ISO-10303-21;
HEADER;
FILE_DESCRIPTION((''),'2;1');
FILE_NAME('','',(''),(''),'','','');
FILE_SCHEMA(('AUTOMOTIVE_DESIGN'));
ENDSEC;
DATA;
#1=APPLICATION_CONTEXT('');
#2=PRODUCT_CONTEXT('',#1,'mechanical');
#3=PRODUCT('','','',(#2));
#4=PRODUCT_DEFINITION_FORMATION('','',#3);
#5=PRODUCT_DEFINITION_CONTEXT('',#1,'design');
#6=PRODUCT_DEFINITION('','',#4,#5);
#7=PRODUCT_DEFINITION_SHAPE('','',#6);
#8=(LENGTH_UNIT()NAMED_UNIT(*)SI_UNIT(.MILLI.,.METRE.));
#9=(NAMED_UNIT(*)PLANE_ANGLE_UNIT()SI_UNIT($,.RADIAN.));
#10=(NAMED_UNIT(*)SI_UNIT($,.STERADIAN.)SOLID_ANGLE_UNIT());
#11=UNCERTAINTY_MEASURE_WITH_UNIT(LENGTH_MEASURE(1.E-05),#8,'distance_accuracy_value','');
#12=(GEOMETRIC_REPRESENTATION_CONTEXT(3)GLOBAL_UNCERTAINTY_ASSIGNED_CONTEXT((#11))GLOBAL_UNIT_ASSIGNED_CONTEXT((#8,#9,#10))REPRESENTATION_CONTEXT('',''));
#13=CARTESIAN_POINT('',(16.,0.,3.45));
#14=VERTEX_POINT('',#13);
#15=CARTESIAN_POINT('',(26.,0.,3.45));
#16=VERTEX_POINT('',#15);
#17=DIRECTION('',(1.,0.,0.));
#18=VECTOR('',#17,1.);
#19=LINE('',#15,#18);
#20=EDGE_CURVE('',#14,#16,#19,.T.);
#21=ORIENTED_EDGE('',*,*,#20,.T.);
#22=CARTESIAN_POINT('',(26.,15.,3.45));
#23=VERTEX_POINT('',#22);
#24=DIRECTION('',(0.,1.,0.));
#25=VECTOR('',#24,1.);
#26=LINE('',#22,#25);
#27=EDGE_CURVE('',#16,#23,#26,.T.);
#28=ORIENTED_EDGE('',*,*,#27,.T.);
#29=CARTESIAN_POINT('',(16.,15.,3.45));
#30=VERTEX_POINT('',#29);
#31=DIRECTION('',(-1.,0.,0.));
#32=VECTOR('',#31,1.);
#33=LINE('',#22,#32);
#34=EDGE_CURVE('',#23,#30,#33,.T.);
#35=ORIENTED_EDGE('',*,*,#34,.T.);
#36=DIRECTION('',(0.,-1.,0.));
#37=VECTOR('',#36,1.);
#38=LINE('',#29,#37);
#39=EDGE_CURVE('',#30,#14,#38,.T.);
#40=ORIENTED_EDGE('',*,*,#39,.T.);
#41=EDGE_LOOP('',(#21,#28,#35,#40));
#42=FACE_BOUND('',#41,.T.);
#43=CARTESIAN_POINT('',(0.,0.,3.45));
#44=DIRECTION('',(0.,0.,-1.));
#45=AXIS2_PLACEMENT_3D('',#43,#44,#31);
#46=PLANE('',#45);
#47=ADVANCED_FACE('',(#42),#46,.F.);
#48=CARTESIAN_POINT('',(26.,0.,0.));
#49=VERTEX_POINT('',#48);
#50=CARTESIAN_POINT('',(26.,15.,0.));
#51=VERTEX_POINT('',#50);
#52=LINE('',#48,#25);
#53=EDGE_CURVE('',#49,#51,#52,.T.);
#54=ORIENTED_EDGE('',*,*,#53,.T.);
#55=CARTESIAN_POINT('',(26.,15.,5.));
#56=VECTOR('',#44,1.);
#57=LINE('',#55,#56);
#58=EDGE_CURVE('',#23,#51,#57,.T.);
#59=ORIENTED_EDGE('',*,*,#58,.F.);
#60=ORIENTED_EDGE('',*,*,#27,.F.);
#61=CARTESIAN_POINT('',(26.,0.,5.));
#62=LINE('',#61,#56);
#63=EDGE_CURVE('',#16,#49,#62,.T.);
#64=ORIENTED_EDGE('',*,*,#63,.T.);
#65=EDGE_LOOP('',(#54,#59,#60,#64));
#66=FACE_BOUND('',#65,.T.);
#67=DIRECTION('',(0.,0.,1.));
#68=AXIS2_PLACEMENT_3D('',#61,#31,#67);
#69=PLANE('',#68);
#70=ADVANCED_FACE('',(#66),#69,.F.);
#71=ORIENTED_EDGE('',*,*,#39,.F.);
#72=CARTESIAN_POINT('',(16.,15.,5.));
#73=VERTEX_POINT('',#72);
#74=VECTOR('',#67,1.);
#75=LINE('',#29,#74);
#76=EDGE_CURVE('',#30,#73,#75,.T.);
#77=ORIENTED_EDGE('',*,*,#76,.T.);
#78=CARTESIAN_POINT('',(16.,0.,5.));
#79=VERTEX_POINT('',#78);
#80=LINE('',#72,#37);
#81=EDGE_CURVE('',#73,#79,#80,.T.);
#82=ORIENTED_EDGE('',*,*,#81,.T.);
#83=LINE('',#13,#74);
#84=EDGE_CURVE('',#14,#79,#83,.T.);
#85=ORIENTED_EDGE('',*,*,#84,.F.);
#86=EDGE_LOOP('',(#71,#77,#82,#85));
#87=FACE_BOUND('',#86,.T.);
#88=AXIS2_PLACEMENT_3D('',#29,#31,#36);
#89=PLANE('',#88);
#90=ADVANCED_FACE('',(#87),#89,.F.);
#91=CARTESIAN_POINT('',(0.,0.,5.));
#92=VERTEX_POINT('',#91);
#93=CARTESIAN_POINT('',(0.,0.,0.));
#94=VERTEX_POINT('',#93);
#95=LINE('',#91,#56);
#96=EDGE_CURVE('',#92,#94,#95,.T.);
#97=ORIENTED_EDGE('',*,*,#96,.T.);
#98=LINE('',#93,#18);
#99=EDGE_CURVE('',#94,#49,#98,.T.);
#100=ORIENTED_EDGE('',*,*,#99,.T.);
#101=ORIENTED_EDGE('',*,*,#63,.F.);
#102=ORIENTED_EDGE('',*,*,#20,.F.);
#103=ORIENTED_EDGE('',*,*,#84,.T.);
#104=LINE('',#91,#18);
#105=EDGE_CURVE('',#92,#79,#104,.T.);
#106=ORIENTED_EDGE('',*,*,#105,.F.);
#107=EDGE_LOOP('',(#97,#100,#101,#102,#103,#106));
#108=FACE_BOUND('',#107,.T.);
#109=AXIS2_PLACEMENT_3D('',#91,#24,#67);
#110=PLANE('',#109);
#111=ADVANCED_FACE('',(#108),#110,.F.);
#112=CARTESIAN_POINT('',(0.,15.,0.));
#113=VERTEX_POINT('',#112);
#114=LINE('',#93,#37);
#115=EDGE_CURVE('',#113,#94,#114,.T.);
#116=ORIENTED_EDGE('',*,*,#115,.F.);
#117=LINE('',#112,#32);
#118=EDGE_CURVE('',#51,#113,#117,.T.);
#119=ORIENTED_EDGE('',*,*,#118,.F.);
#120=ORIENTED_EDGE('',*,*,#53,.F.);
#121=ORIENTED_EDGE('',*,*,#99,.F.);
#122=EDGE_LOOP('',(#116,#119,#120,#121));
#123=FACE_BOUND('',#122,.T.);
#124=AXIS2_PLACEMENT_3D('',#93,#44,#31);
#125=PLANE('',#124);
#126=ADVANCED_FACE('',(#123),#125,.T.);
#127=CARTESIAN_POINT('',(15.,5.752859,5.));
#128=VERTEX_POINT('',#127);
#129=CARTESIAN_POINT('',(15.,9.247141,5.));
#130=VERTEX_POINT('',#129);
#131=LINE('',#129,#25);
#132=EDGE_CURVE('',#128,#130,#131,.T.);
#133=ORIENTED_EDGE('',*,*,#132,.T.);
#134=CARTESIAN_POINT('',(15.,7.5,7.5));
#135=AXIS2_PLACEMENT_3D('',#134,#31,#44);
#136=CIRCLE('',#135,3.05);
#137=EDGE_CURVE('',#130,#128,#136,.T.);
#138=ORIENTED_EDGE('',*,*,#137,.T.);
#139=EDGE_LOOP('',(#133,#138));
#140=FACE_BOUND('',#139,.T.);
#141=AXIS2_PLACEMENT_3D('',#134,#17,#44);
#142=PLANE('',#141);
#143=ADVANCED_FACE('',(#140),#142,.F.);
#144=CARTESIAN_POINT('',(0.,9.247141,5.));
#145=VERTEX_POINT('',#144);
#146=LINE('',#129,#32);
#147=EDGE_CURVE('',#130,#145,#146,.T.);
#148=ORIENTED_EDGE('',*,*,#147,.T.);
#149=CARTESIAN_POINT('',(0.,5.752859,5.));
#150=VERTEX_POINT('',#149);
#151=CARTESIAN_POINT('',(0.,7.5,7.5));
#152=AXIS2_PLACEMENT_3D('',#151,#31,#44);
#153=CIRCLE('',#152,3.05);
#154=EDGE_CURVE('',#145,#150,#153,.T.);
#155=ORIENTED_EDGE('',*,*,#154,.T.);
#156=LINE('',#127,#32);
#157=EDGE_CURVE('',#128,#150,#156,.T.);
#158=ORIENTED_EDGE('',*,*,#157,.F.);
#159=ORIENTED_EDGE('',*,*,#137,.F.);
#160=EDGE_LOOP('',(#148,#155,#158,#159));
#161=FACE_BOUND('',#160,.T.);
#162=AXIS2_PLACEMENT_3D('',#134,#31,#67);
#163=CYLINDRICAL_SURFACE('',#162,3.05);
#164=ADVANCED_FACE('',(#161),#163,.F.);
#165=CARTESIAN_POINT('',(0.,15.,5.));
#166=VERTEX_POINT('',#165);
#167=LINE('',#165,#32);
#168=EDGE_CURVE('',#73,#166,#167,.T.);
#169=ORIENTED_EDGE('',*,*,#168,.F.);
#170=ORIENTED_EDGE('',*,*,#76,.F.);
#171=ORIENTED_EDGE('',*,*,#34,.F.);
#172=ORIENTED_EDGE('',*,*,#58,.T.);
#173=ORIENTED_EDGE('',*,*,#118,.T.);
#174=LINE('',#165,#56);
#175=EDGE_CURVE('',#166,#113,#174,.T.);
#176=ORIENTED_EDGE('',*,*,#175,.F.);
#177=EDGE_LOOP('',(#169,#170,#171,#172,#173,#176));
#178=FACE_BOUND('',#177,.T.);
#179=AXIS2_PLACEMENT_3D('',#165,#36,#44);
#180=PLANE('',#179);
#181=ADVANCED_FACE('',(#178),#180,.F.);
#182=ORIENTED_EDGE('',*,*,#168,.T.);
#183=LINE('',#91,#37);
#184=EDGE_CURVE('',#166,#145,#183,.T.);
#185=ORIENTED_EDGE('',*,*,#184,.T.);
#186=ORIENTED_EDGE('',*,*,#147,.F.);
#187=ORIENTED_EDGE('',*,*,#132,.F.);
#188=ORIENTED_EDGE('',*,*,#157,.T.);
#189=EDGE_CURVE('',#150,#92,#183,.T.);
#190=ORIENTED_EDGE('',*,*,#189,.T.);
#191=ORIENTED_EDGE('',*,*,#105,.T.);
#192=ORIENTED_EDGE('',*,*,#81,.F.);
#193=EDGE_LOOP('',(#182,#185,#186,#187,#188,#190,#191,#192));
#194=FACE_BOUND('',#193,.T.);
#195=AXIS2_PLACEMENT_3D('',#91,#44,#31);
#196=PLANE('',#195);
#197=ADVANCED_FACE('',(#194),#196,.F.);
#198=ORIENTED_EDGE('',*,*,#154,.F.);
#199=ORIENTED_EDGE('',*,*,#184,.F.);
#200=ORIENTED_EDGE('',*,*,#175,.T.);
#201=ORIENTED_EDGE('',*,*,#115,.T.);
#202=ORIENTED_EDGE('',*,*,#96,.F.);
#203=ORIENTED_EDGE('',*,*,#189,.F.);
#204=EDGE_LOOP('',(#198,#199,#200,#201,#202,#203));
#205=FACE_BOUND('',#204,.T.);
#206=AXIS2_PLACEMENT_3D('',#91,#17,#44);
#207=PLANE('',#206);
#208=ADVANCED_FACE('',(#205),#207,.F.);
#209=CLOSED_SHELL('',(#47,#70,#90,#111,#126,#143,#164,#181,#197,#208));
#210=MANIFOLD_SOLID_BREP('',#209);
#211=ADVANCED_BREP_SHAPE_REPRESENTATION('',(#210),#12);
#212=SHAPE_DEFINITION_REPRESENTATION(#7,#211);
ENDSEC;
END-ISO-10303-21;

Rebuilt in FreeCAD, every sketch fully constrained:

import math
import FreeCAD as App
import Part
import Sketcher

V = App.Vector
Q = App.Units.Quantity


def add_polygon(sketch, points):
    """Adds a closed chain of lines whose ends are joined by coincident constraints."""
    first, n = sketch.GeometryCount, len(points)
    for a, b in zip(points, points[1:] + points[:1]):
        sketch.addGeometry(Part.LineSegment(App.Vector(*a, 0), App.Vector(*b, 0)), False)
    for i in range(n):
        sketch.addConstraint(Sketcher.Constraint("Coincident", first + i, 2, first + (i + 1) % n, 1))

doc = App.newDocument("Part")
body = doc.addObject("PartDesign::Body", "Body")

sketch1 = doc.addObject("Sketcher::SketchObject", "Sketch")
body.addObject(sketch1)
sketch1.AttachmentSupport = (doc.XY_Plane, [""])
sketch1.MapMode = "FlatFace"
add_polygon(sketch1, [(0, 15), (0, 0), (26, 0), (26, 15)])
sketch1.addConstraint([
    Sketcher.Constraint("Vertical", 0),
    Sketcher.Constraint("Horizontal", 1),
    Sketcher.Constraint("Vertical", 2),
    Sketcher.Constraint("Horizontal", 3),
    Sketcher.Constraint("Coincident", 0, 2, -1, 1),
    Sketcher.Constraint("DistanceX", 1, 1, 1, 2, Q("26 mm")),
    Sketcher.Constraint("DistanceY", 0, 2, 0, 1, Q("15 mm")),
])
pad1 = doc.addObject("PartDesign::Pad", "Pad")
body.addObject(pad1)
pad1.Profile = sketch1
pad1.Length = 5

sketch2 = doc.addObject("Sketcher::SketchObject", "Sketch001")
body.addObject(sketch2)
sketch2.AttachmentSupport = (doc.YZ_Plane, [""])
sketch2.MapMode = "FlatFace"
sketch2.addGeometry([
    Part.LineSegment(V(5.8, 5, 0), V(9.2, 5, 0)),
    Part.ArcOfCircle(Part.Circle(V(7.5, 7.5, 0), V(0, 0, 1), 3), math.radians(-125), math.radians(-55)),
], False)
sketch2.addConstraint([
    Sketcher.Constraint("Coincident", 0, 1, 1, 1),
    Sketcher.Constraint("Coincident", 1, 2, 0, 2),
    Sketcher.Constraint("Horizontal", 0),
    Sketcher.Constraint("Radius", 1, Q("3.05 mm")),
    Sketcher.Constraint("DistanceY", -1, 1, 0, 1, Q("5 mm")),
    Sketcher.Constraint("DistanceX", -1, 1, 1, 3, Q("7.5 mm")),
    Sketcher.Constraint("DistanceY", -1, 1, 1, 3, Q("7.5 mm")),
])
pocket1 = doc.addObject("PartDesign::Pocket", "Pocket")
body.addObject(pocket1)
pocket1.Profile = sketch2
pocket1.Length = 15
pocket1.Reversed = True

sketch3 = doc.addObject("Sketcher::SketchObject", "Sketch002")
body.addObject(sketch3)
sketch3.AttachmentSupport = (doc.XY_Plane, [""])
sketch3.MapMode = "FlatFace"
sketch3.AttachmentOffset = App.Placement(V(0, 0, 5), App.Rotation())
add_polygon(sketch3, [(16, 15), (16, 0), (26, 0), (26, 15)])
sketch3.addConstraint([
    Sketcher.Constraint("Vertical", 0),
    Sketcher.Constraint("Horizontal", 1),
    Sketcher.Constraint("Vertical", 2),
    Sketcher.Constraint("Horizontal", 3),
    Sketcher.Constraint("PointOnObject", 0, 2, -1),
    Sketcher.Constraint("DistanceX", 1, 1, 1, 2, Q("10 mm")),
    Sketcher.Constraint("DistanceY", 0, 2, 0, 1, Q("15 mm")),
    Sketcher.Constraint("DistanceX", -1, 1, 0, 2, Q("16 mm")),
])
pocket2 = doc.addObject("PartDesign::Pocket", "Pocket001")
body.addObject(pocket2)
pocket2.Profile = sketch3
pocket2.Length = 1.55

doc.recompute()
